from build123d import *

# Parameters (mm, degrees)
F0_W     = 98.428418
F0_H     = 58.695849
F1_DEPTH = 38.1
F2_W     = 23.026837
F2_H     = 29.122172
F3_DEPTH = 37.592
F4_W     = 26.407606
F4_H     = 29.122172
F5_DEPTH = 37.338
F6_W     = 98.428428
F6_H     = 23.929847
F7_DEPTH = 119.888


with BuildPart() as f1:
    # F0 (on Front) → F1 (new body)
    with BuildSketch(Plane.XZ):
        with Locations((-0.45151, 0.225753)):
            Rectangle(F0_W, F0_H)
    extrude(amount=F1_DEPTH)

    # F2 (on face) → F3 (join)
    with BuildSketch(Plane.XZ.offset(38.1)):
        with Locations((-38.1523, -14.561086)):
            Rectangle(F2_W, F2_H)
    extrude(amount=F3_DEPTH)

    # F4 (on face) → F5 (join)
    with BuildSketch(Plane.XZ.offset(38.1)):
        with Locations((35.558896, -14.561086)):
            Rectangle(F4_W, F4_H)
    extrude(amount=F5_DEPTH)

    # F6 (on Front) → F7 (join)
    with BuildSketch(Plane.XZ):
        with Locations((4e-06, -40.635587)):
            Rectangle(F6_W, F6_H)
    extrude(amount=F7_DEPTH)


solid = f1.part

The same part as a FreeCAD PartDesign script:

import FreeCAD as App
import Part
import Sketcher
from FreeCAD import Vector
Q = App.Units.Quantity

doc = App.newDocument("Part")
body = doc.addObject("PartDesign::Body", "Body")

# Sketch on XZ plane
sketch1 = doc.addObject("Sketcher::SketchObject", "Sketch")
body.addObject(sketch1)
sketch1.AttachmentSupport = (doc.XZ_Plane, [""])
sketch1.MapMode = "FlatFace"
sketch1.addGeometry(Part.LineSegment(Vector(-49.665719, 29.573677, 0), Vector(-49.665719, -29.122172, 0)), False)
sketch1.addGeometry(Part.LineSegment(Vector(-49.665719, -29.122172, 0), Vector(48.762699, -29.122172, 0)), False)
sketch1.addGeometry(Part.LineSegment(Vector(48.762699, -29.122172, 0), Vector(48.762699, 29.573677, 0)), False)
sketch1.addGeometry(Part.LineSegment(Vector(48.762699, 29.573677, 0), Vector(-49.665719, 29.573677, 0)), False)
sketch1.addConstraint(Sketcher.Constraint("Coincident", 0, 2, 1, 1))
sketch1.addConstraint(Sketcher.Constraint("Coincident", 1, 2, 2, 1))
sketch1.addConstraint(Sketcher.Constraint("Coincident", 2, 2, 3, 1))
sketch1.addConstraint(Sketcher.Constraint("Coincident", 3, 2, 0, 1))
sketch1.addConstraint(Sketcher.Constraint("Vertical", 0))
sketch1.addConstraint(Sketcher.Constraint("Horizontal", 1))
sketch1.addConstraint(Sketcher.Constraint("Vertical", 2))
sketch1.addConstraint(Sketcher.Constraint("Horizontal", 3))
sketch1.addConstraint(Sketcher.Constraint("DistanceY", 0, 2, 0, 1, Q("58.695849 mm")))
sketch1.addConstraint(Sketcher.Constraint("DistanceX", -1, 1, 1, 2, Q("48.762699 mm")))
sketch1.addConstraint(Sketcher.Constraint("DistanceX", 1, 1, 1, 2, Q("98.428418 mm")))
sketch1.addConstraint(Sketcher.Constraint("DistanceY", 0, 2, -1, 1, Q("29.122172 mm")))
pad1 = doc.addObject("PartDesign::Pad", "Pad")
body.addObject(pad1)
pad1.Profile = sketch1
pad1.Length = Q("1.5 in")

# Sketch on XZ plane
sketch2 = doc.addObject("Sketcher::SketchObject", "Sketch001")
body.addObject(sketch2)
sketch2.AttachmentSupport = (doc.XZ_Plane, [""])
sketch2.MapMode = "FlatFace"
sketch2.AttachmentOffset = App.Placement(Vector(0, 0, 1.5 * 25.4), App.Rotation())
sketch2.addGeometry(Part.LineSegment(Vector(-49.665718, 0, 0), Vector(-49.665718, -29.122172, 0)), False)
sketch2.addGeometry(Part.LineSegment(Vector(-49.665718, -29.122172, 0), Vector(-26.638882, -29.122172, 0)), False)
sketch2.addGeometry(Part.LineSegment(Vector(-26.638882, -29.122172, 0), Vector(-26.638882, 0, 0)), False)
sketch2.addGeometry(Part.LineSegment(Vector(-26.638882, 0, 0), Vector(-49.665718, 0, 0)), False)
sketch2.addConstraint(Sketcher.Constraint("Coincident", 0, 2, 1, 1))
sketch2.addConstraint(Sketcher.Constraint("Coincident", 1, 2, 2, 1))
sketch2.addConstraint(Sketcher.Constraint("Coincident", 2, 2, 3, 1))
sketch2.addConstraint(Sketcher.Constraint("Coincident", 3, 2, 0, 1))
sketch2.addConstraint(Sketcher.Constraint("Vertical", 0))
sketch2.addConstraint(Sketcher.Constraint("Horizontal", 1))
sketch2.addConstraint(Sketcher.Constraint("Vertical", 2))
sketch2.addConstraint(Sketcher.Constraint("Horizontal", 3))
sketch2.addConstraint(Sketcher.Constraint("PointOnObject", 2, 2, -1))
sketch2.addConstraint(Sketcher.Constraint("DistanceY", 0, 2, 0, 1, Q("29.122172 mm")))
sketch2.addConstraint(Sketcher.Constraint("DistanceX", 1, 1, 1, 2, Q("23.026837 mm")))
sketch2.addConstraint(Sketcher.Constraint("DistanceX", 0, 2, -1, 1, Q("49.665718 mm")))
pad2 = doc.addObject("PartDesign::Pad", "Pad001")
body.addObject(pad2)
pad2.Profile = sketch2
pad2.Length = Q("1.48 in")

# Sketch on XZ plane
sketch3 = doc.addObject("Sketcher::SketchObject", "Sketch002")
body.addObject(sketch3)
sketch3.AttachmentSupport = (doc.XZ_Plane, [""])
sketch3.MapMode = "FlatFace"
sketch3.AttachmentOffset = App.Placement(Vector(0, 0, 1.5 * 25.4), App.Rotation())
sketch3.addGeometry(Part.LineSegment(Vector(22.355093, 0, 0), Vector(22.355093, -29.122172, 0)), False)
sketch3.addGeometry(Part.LineSegment(Vector(22.355093, -29.122172, 0), Vector(48.762699, -29.122172, 0)), False)
sketch3.addGeometry(Part.LineSegment(Vector(48.762699, -29.122172, 0), Vector(48.762699, 0, 0)), False)
sketch3.addGeometry(Part.LineSegment(Vector(48.762699, 0, 0), Vector(22.355093, 0, 0)), False)
sketch3.addConstraint(Sketcher.Constraint("Coincident", 0, 2, 1, 1))
sketch3.addConstraint(Sketcher.Constraint("Coincident", 1, 2, 2, 1))
sketch3.addConstraint(Sketcher.Constraint("Coincident", 2, 2, 3, 1))
sketch3.addConstraint(Sketcher.Constraint("Coincident", 3, 2, 0, 1))
sketch3.addConstraint(Sketcher.Constraint("Vertical", 0))
sketch3.addConstraint(Sketcher.Constraint("Horizontal", 1))
sketch3.addConstraint(Sketcher.Constraint("Vertical", 2))
sketch3.addConstraint(Sketcher.Constraint("Horizontal", 3))
sketch3.addConstraint(Sketcher.Constraint("PointOnObject", 2, 2, -1))
sketch3.addConstraint(Sketcher.Constraint("DistanceY", 0, 2, 0, 1, Q("29.122172 mm")))
sketch3.addConstraint(Sketcher.Constraint("DistanceX", -1, 1, 1, 2, Q("48.762699 mm")))
sketch3.addConstraint(Sketcher.Constraint("DistanceX", 1, 1, 1, 2, Q("26.407606 mm")))
pad3 = doc.addObject("PartDesign::Pad", "Pad002")
body.addObject(pad3)
pad3.Profile = sketch3
pad3.Length = Q("1.47 in")

# Sketch on XZ plane
sketch4 = doc.addObject("Sketcher::SketchObject", "Sketch003")
body.addObject(sketch4)
sketch4.AttachmentSupport = (doc.XZ_Plane, [""])
sketch4.MapMode = "FlatFace"
sketch4.addGeometry(Part.LineSegment(Vector(-49.21421, -28.670663, 0), Vector(-49.21421, -52.60051, 0)), False)
sketch4.addGeometry(Part.LineSegment(Vector(-49.21421, -52.60051, 0), Vector(49.214218, -52.60051, 0)), False)
sketch4.addGeometry(Part.LineSegment(Vector(49.214218, -52.60051, 0), Vector(49.214218, -28.670663, 0)), False)
sketch4.addGeometry(Part.LineSegment(Vector(49.214218, -28.670663, 0), Vector(-49.21421, -28.670663, 0)), False)
sketch4.addConstraint(Sketcher.Constraint("Coincident", 0, 2, 1, 1))
sketch4.addConstraint(Sketcher.Constraint("Coincident", 1, 2, 2, 1))
sketch4.addConstraint(Sketcher.Constraint("Coincident", 2, 2, 3, 1))
sketch4.addConstraint(Sketcher.Constraint("Coincident", 3, 2, 0, 1))
sketch4.addConstraint(Sketcher.Constraint("Vertical", 0))
sketch4.addConstraint(Sketcher.Constraint("Horizontal", 1))
sketch4.addConstraint(Sketcher.Constraint("Vertical", 2))
sketch4.addConstraint(Sketcher.Constraint("Horizontal", 3))
sketch4.addConstraint(Sketcher.Constraint("DistanceX", 1, 1, 1, 2, Q("98.428428 mm")))
sketch4.addConstraint(Sketcher.Constraint("DistanceY", 0, 2, 0, 1, Q("23.929847 mm")))
sketch4.addConstraint(Sketcher.Constraint("DistanceX", 0, 2, -1, 1, Q("49.21421 mm")))
sketch4.addConstraint(Sketcher.Constraint("DistanceY", 0, 2, -1, 1, Q("52.60051 mm")))
pad4 = doc.addObject("PartDesign::Pad", "Pad003")
body.addObject(pad4)
pad4.Profile = sketch4
pad4.Length = Q("4.72 in")

doc.recompute()
